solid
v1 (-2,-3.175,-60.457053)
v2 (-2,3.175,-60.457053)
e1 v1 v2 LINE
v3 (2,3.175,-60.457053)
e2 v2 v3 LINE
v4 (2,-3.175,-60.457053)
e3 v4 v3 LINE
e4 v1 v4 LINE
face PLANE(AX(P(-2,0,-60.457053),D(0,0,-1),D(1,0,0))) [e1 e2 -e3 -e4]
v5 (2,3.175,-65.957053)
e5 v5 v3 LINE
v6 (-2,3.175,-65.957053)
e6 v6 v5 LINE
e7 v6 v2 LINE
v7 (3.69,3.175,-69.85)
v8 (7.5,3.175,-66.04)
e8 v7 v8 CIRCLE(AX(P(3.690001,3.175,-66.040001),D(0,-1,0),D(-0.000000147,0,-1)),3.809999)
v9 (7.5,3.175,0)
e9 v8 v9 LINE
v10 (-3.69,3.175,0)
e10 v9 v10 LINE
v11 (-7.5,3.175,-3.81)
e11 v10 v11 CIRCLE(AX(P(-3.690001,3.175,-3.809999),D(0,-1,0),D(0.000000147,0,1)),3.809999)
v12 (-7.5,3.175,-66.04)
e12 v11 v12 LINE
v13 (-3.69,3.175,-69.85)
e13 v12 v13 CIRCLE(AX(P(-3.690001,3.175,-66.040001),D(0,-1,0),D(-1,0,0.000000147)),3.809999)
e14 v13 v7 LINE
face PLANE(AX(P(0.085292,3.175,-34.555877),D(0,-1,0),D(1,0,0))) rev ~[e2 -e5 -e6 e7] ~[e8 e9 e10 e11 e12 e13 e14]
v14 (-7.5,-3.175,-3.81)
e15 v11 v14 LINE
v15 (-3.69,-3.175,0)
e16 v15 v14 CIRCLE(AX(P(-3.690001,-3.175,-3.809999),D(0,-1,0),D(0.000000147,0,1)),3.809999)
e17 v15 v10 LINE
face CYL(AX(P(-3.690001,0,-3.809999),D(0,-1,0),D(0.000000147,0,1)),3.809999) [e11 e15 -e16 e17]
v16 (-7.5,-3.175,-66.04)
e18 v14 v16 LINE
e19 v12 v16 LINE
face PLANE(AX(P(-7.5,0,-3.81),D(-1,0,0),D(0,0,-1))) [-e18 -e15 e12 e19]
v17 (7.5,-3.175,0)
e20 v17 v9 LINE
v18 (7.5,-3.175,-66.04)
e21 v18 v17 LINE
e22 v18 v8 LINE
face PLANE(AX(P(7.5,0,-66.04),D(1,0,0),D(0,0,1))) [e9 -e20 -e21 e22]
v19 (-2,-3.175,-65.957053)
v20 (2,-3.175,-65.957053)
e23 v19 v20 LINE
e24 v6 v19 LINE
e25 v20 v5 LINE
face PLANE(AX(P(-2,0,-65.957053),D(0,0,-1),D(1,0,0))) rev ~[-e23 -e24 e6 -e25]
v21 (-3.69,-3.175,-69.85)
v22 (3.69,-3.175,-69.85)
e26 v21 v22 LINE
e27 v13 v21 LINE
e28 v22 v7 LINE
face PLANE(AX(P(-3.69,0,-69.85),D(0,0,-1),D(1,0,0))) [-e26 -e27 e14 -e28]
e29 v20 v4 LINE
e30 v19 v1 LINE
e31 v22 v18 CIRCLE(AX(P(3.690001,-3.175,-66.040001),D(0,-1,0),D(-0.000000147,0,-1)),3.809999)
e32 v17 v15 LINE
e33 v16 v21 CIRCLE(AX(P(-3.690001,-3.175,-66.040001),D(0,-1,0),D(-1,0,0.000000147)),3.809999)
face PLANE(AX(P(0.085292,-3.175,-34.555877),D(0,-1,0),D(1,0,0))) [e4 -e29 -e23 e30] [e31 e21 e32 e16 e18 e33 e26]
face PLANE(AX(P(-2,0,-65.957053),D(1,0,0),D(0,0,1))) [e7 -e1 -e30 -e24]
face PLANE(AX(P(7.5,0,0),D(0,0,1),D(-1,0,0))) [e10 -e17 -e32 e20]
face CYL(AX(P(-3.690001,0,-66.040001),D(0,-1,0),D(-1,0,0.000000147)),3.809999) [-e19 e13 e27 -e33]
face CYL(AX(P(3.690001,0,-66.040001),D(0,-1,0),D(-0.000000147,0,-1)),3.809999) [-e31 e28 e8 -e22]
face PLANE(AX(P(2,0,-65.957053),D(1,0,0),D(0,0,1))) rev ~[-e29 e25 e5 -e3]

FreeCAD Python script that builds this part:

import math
import FreeCAD as App
import Part
import Sketcher

V = App.Vector
Q = App.Units.Quantity

doc = App.newDocument("Part")
body = doc.addObject("PartDesign::Body", "Body")

# Sketch on XZ plane
sketch1 = doc.addObject("Sketcher::SketchObject", "Sketch")
body.addObject(sketch1)
sketch1.AttachmentSupport = (doc.XZ_Plane, [""])
sketch1.MapMode = "FlatFace"
sketch1.addGeometry(Part.ArcOfCircle(Part.Circle(V(-3.7, -3.8, 0), V(0, 0, 1), 3.8), math.radians(90), math.radians(180)), False)
sketch1.addGeometry(Part.LineSegment(V(-7.5, -3.8, 0), V(-7.5, -66, 0)), False)
sketch1.addGeometry(Part.ArcOfCircle(Part.Circle(V(-3.7, -66, 0), V(0, 0, 1), 3.8), math.radians(180), math.radians(270)), False)
sketch1.addGeometry(Part.LineSegment(V(-3.7, -69.8, 0), V(3.7, -69.8, 0)), False)
sketch1.addGeometry(Part.ArcOfCircle(Part.Circle(V(3.7, -66, 0), V(0, 0, 1), 3.8), math.radians(-90), math.radians(0)), False)
sketch1.addGeometry(Part.LineSegment(V(7.5, -66, 0), V(7.5, 0, 0)), False)
sketch1.addGeometry(Part.LineSegment(V(7.5, 0, 0), V(-3.7, 0, 0)), False)
sketch1.addGeometry(Part.LineSegment(V(2, -66, 0), V(-2, -66, 0)), False)
sketch1.addGeometry(Part.LineSegment(V(-2, -66, 0), V(-2, -60.5, 0)), False)
sketch1.addGeometry(Part.LineSegment(V(-2, -60.5, 0), V(2, -60.5, 0)), False)
sketch1.addGeometry(Part.LineSegment(V(2, -60.5, 0), V(2, -66, 0)), False)
sketch1.addConstraint(Sketcher.Constraint("Tangent", 0, 2, 1, 1))
sketch1.addConstraint(Sketcher.Constraint("Tangent", 1, 2, 2, 1))
sketch1.addConstraint(Sketcher.Constraint("Tangent", 2, 2, 3, 1))
sketch1.addConstraint(Sketcher.Constraint("Tangent", 3, 2, 4, 1))
sketch1.addConstraint(Sketcher.Constraint("Tangent", 4, 2, 5, 1))
sketch1.addConstraint(Sketcher.Constraint("Coincident", 5, 2, 6, 1))
sketch1.addConstraint(Sketcher.Constraint("Tangent", 6, 2, 0, 1))
sketch1.addConstraint(Sketcher.Constraint("Coincident", 7, 2, 8, 1))
sketch1.addConstraint(Sketcher.Constraint("Coincident", 8, 2, 9, 1))
sketch1.addConstraint(Sketcher.Constraint("Coincident", 9, 2, 10, 1))
sketch1.addConstraint(Sketcher.Constraint("Coincident", 10, 2, 7, 1))
sketch1.addConstraint(Sketcher.Constraint("Vertical", 1))
sketch1.addConstraint(Sketcher.Constraint("Horizontal", 3))
sketch1.addConstraint(Sketcher.Constraint("Vertical", 5))
sketch1.addConstraint(Sketcher.Constraint("Horizontal", 6))
sketch1.addConstraint(Sketcher.Constraint("Horizontal", 7))
sketch1.addConstraint(Sketcher.Constraint("Vertical", 8))
sketch1.addConstraint(Sketcher.Constraint("Horizontal", 9))
sketch1.addConstraint(Sketcher.Constraint("Vertical", 10))
sketch1.addConstraint(Sketcher.Constraint("Equal", 0, 2))
sketch1.addConstraint(Sketcher.Constraint("Equal", 2, 4))
sketch1.addConstraint(Sketcher.Constraint("PointOnObject", 5, 2, -1))
sketch1.addConstraint(Sketcher.Constraint("Radius", 0, Q("0.15 in")))
sketch1.addConstraint(Sketcher.Constraint("DistanceY", 5, 1, 5, 2, Q("2.6 in")))
sketch1.addConstraint(Sketcher.Constraint("DistanceX", 3, 1, 3, 2, Q("7.38 mm")))
sketch1.addConstraint(Sketcher.Constraint("DistanceX", 7, 2, 7, 1, Q("4 mm")))
sketch1.addConstraint(Sketcher.Constraint("DistanceY", 8, 1, 8, 2, Q("5.5 mm")))
sketch1.addConstraint(Sketcher.Constraint("DistanceX", 0, 3, -1, 1, Q("3.690001 mm")))
sketch1.addConstraint(Sketcher.Constraint("DistanceX", 7, 2, -1, 1, Q("2 mm")))
sketch1.addConstraint(Sketcher.Constraint("DistanceY", 7, 2, -1, 1, Q("65.957053 mm")))
pad1 = doc.addObject("PartDesign::Pad", "Pad")
body.addObject(pad1)
pad1.Profile = sketch1
pad1.Length = Q("0.25 in")
pad1.Midplane = True

doc.recompute()
